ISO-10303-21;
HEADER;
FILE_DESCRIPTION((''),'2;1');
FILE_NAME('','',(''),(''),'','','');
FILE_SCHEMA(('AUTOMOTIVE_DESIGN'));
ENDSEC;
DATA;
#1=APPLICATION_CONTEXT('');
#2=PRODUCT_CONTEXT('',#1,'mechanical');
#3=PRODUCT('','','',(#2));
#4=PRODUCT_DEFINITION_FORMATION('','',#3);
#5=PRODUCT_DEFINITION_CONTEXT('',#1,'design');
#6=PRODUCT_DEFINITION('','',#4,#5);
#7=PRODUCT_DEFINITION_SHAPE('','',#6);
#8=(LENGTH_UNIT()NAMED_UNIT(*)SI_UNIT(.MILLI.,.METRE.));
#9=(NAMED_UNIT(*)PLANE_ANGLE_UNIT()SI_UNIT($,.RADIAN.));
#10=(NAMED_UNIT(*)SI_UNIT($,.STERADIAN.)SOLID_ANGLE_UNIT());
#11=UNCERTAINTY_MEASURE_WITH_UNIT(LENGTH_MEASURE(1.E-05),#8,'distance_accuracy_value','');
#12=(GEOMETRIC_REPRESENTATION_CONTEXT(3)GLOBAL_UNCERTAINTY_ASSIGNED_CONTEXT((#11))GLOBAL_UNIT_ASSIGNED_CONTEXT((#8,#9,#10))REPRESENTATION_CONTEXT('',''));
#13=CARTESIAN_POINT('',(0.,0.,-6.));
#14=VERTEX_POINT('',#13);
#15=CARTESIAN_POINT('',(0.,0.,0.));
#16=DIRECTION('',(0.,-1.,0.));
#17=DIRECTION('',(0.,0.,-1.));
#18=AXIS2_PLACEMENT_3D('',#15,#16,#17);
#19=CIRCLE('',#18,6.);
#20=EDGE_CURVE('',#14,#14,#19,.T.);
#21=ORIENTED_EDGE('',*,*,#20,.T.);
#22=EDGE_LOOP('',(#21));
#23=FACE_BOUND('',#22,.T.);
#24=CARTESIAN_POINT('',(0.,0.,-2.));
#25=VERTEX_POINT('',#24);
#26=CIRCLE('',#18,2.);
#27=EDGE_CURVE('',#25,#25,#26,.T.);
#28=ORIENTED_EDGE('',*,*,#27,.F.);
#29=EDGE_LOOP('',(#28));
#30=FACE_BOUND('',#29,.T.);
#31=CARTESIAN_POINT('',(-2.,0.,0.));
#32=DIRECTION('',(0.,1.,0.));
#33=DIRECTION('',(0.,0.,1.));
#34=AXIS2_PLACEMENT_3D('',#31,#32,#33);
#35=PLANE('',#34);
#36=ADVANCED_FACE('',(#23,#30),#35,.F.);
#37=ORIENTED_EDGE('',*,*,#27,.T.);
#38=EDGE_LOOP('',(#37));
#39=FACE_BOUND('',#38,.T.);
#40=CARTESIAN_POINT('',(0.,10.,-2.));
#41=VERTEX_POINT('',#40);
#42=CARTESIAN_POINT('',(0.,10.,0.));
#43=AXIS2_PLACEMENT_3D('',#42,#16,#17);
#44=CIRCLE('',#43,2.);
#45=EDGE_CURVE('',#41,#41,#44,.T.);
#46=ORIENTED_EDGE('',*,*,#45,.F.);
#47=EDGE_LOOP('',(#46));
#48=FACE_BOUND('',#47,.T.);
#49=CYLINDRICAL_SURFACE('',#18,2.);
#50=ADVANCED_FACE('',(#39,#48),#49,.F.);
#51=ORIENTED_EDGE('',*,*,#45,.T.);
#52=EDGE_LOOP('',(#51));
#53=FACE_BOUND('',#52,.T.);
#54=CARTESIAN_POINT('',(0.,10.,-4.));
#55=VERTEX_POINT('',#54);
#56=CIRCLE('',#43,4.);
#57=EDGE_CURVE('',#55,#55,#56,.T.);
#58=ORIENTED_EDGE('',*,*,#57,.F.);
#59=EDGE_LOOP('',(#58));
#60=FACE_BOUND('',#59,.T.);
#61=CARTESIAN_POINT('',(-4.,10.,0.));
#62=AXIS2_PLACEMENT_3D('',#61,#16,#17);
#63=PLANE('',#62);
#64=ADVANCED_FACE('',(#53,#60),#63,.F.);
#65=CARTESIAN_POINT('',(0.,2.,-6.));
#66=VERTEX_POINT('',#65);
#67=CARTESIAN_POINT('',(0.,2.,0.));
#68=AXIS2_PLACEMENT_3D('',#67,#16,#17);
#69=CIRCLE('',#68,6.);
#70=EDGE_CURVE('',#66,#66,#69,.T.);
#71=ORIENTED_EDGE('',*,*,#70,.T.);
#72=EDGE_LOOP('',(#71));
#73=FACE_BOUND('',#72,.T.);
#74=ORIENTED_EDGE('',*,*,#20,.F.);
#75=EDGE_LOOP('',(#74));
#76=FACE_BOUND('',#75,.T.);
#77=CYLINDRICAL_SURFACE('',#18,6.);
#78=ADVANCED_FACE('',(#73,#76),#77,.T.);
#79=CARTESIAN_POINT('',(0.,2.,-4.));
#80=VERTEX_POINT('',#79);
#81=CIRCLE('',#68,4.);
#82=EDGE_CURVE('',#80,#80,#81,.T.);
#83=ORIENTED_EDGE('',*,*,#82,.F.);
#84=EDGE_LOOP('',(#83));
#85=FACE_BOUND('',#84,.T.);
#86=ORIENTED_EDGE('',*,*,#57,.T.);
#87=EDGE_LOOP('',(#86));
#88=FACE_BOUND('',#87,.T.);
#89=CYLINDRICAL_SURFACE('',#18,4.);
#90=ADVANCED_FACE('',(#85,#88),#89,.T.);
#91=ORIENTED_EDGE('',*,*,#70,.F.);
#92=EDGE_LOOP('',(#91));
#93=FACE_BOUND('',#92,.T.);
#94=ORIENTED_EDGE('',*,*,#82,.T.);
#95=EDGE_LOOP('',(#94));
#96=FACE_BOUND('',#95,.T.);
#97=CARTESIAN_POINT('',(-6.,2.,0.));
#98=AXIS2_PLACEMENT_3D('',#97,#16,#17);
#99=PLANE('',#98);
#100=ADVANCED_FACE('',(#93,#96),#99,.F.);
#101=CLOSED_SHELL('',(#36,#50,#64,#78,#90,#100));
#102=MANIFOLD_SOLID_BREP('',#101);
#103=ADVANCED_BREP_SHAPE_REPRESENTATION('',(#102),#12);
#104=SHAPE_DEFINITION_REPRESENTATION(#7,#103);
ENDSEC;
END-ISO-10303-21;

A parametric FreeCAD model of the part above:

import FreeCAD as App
import Part
import Sketcher
from FreeCAD import Vector
Q = App.Units.Quantity

doc = App.newDocument("Part")
body = doc.addObject("PartDesign::Body", "Body")

# Sketch on XY plane
sketch1 = body.newObject("Sketcher::SketchObject", "Sketch")
sketch1.AttachmentSupport = (doc.getObject("XY_Plane"), [""])
sketch1.MapMode = "FlatFace"
sketch1.addGeometry([
    Part.LineSegment(Vector(-2, 0, 0), Vector(-2, 10, 0)),  # 0
    Part.LineSegment(Vector(-2, 10, 0), Vector(-4, 10, 0)),  # 1
    Part.LineSegment(Vector(-4, 10, 0), Vector(-4, 2, 0)),  # 2
    Part.LineSegment(Vector(-4, 2, 0), Vector(-6, 2, 0)),  # 3
    Part.LineSegment(Vector(-6, 2, 0), Vector(-6, 0, 0)),  # 4
    Part.LineSegment(Vector(-6, 0, 0), Vector(-2, 0, 0)),  # 5
], False)
sketch1.addConstraint([
    Sketcher.Constraint("Coincident", 0, 2, 1, 1),
    Sketcher.Constraint("Coincident", 1, 2, 2, 1),
    Sketcher.Constraint("Coincident", 2, 2, 3, 1),
    Sketcher.Constraint("Coincident", 3, 2, 4, 1),
    Sketcher.Constraint("Coincident", 4, 2, 5, 1),
    Sketcher.Constraint("Coincident", 5, 2, 0, 1),
    Sketcher.Constraint("Vertical", 0),
    Sketcher.Constraint("Horizontal", 1),
    Sketcher.Constraint("Vertical", 2),
    Sketcher.Constraint("Horizontal", 3),
    Sketcher.Constraint("Vertical", 4),
    Sketcher.Constraint("Horizontal", 5),
    Sketcher.Constraint("PointOnObject", 4, 2, -1),
    Sketcher.Constraint("Equal", 1, 3),
    Sketcher.Constraint("Equal", 3, 4),
    Sketcher.Constraint("DistanceX", 1, 2, 1, 1, Q("2 mm")),
    Sketcher.Constraint("DistanceY", 0, 1, 0, 2, Q("10 mm")),
    Sketcher.Constraint("DistanceX", 0, 2, -1, 1, Q("2 mm")),
])
revolution = body.newObject("PartDesign::Revolution", "Revolution")
revolution.Profile = sketch1
revolution.ReferenceAxis = (sketch1, ["V_Axis"])
revolution.Angle = 360

doc.recompute()
